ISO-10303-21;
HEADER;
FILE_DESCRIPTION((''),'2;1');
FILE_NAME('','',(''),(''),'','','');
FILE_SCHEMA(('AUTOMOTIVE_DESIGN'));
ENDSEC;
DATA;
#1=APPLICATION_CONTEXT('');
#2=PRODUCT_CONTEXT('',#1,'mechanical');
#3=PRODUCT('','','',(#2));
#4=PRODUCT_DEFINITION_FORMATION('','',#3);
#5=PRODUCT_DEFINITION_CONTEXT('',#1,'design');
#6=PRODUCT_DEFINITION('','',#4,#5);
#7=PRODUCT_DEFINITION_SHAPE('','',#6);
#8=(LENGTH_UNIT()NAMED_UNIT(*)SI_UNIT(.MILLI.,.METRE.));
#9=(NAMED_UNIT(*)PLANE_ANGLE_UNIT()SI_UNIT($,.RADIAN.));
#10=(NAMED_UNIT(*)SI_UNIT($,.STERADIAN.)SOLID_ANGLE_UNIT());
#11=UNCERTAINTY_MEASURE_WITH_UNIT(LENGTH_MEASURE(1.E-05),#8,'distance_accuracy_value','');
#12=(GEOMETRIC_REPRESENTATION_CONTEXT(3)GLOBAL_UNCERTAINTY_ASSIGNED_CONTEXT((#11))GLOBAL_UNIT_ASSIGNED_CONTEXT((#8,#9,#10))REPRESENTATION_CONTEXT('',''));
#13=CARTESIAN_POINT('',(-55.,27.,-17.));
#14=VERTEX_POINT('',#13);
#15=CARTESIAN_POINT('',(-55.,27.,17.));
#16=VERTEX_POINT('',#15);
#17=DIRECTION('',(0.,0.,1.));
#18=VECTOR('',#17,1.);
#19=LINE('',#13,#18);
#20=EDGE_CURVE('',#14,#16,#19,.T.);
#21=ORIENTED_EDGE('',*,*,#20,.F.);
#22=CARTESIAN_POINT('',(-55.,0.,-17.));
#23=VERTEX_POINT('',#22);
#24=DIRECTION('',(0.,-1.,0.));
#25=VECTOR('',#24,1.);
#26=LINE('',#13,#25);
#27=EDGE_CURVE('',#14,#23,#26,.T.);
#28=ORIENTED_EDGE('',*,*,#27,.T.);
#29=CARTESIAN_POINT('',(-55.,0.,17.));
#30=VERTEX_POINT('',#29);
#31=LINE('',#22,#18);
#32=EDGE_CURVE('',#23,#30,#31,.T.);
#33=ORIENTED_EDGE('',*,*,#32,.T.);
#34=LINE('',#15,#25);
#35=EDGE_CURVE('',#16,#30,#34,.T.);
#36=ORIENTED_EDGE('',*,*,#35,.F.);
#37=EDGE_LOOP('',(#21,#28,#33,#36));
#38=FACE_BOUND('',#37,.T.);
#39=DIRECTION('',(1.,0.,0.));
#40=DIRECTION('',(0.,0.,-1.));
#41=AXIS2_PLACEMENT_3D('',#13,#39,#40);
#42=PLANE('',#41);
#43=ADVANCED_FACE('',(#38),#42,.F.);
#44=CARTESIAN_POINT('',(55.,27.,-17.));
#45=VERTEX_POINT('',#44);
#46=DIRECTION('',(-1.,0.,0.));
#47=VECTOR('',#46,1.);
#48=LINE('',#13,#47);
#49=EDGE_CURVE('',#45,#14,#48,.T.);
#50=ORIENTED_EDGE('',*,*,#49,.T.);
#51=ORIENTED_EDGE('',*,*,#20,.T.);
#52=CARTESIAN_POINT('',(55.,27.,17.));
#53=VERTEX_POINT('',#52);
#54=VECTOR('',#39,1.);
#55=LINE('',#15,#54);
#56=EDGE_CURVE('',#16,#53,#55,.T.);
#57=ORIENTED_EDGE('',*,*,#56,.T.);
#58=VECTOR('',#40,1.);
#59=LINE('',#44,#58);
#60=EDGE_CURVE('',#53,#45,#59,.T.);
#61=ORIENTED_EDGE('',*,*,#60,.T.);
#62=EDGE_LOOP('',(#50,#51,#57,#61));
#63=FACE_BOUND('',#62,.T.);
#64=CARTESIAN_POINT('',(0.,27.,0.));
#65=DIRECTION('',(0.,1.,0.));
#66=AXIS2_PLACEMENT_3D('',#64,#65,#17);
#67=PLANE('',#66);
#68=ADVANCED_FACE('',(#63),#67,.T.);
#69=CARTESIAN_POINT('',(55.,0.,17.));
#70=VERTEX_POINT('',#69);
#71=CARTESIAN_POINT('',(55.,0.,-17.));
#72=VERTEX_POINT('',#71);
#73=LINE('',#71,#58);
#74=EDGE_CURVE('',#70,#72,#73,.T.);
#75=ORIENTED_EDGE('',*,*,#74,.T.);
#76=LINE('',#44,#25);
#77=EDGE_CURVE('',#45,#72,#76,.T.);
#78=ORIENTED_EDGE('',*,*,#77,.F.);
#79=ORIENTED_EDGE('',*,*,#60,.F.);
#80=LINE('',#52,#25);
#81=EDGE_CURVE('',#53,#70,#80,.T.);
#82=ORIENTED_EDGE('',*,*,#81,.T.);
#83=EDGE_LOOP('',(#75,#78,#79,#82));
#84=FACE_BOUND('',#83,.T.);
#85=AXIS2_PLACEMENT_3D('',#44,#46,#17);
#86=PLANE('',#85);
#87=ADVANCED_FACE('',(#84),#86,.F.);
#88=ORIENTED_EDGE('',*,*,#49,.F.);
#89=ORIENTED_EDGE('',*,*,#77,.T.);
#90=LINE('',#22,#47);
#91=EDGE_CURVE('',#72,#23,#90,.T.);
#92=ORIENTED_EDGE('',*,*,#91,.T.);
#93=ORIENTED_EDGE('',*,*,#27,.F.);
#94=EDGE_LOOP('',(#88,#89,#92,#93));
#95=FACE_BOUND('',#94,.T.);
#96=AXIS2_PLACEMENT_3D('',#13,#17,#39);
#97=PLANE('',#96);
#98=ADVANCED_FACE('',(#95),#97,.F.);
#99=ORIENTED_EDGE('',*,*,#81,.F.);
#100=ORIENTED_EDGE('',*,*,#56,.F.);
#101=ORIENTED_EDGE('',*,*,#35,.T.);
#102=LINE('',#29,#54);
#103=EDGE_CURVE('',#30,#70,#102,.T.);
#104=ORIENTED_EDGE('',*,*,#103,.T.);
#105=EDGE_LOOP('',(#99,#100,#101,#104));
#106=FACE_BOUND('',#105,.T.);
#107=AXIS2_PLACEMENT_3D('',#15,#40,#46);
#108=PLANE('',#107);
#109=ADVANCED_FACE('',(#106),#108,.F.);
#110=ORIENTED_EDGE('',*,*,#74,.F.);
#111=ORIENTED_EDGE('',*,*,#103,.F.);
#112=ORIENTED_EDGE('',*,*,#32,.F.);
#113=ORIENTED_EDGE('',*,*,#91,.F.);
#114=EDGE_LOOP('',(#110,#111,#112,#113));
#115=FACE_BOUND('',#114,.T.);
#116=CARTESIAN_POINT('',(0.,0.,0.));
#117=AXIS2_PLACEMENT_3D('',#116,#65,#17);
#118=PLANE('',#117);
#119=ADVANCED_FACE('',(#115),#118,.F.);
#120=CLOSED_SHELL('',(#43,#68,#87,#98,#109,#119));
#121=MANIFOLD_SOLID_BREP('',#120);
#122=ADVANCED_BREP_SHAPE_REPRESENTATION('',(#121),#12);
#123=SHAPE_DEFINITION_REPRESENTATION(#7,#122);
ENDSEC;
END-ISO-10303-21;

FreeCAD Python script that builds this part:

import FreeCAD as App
import Part
import Sketcher
from FreeCAD import Vector


def add_polygon(sketch, points):
    """Adds a closed chain of lines whose ends are joined by coincident constraints."""
    first, n = sketch.GeometryCount, len(points)
    for a, b in zip(points, points[1:] + points[:1]):
        sketch.addGeometry(Part.LineSegment(App.Vector(*a, 0), App.Vector(*b, 0)), False)
    for i in range(n):
        sketch.addConstraint(Sketcher.Constraint("Coincident", first + i, 2, first + (i + 1) % n, 1))

doc = App.newDocument("Part")
params = doc.addObject("Spreadsheet::Sheet", "Params")
for row, (alias, value) in enumerate([
    ("sketch1_width", "110 mm"),
    ("sketch1_height", "34 mm"),
    ("pad1_length", "27 mm"),
], start=1):
    params.set(f"A{row}", alias)
    params.set(f"B{row}", "=" + value)
    params.setAlias(f"B{row}", alias)

body = doc.addObject("PartDesign::Body", "Body")

# Sketch on XZ plane
sketch1 = doc.addObject("Sketcher::SketchObject", "Sketch")
body.addObject(sketch1)
sketch1.AttachmentSupport = (doc.XZ_Plane, [""])
sketch1.MapMode = "FlatFace"
add_polygon(sketch1, [(-55, -17), (-55, 17), (55, 17), (55, -17)])  # lines 0-3
sketch1.addConstraint([
    Sketcher.Constraint("Vertical", 0),
    Sketcher.Constraint("Horizontal", 1),
    Sketcher.Constraint("Vertical", 2),
    Sketcher.Constraint("Horizontal", 3),
    Sketcher.Constraint("Symmetric", 0, 2, 2, 2, -1, 1),
    Sketcher.Constraint("DistanceX", 1, 1, 1, 2, 110.0),
    Sketcher.Constraint("DistanceY", 0, 1, 0, 2, 34.0),
])
sketch1.setExpression("Constraints[9]", "Params.sketch1_width")
sketch1.setExpression("Constraints[10]", "Params.sketch1_height")
pad1 = doc.addObject("PartDesign::Pad", "Pad")
body.addObject(pad1)
pad1.Profile = sketch1
pad1.setExpression("Length", "Params.pad1_length")
pad1.Reversed = True

doc.recompute()
